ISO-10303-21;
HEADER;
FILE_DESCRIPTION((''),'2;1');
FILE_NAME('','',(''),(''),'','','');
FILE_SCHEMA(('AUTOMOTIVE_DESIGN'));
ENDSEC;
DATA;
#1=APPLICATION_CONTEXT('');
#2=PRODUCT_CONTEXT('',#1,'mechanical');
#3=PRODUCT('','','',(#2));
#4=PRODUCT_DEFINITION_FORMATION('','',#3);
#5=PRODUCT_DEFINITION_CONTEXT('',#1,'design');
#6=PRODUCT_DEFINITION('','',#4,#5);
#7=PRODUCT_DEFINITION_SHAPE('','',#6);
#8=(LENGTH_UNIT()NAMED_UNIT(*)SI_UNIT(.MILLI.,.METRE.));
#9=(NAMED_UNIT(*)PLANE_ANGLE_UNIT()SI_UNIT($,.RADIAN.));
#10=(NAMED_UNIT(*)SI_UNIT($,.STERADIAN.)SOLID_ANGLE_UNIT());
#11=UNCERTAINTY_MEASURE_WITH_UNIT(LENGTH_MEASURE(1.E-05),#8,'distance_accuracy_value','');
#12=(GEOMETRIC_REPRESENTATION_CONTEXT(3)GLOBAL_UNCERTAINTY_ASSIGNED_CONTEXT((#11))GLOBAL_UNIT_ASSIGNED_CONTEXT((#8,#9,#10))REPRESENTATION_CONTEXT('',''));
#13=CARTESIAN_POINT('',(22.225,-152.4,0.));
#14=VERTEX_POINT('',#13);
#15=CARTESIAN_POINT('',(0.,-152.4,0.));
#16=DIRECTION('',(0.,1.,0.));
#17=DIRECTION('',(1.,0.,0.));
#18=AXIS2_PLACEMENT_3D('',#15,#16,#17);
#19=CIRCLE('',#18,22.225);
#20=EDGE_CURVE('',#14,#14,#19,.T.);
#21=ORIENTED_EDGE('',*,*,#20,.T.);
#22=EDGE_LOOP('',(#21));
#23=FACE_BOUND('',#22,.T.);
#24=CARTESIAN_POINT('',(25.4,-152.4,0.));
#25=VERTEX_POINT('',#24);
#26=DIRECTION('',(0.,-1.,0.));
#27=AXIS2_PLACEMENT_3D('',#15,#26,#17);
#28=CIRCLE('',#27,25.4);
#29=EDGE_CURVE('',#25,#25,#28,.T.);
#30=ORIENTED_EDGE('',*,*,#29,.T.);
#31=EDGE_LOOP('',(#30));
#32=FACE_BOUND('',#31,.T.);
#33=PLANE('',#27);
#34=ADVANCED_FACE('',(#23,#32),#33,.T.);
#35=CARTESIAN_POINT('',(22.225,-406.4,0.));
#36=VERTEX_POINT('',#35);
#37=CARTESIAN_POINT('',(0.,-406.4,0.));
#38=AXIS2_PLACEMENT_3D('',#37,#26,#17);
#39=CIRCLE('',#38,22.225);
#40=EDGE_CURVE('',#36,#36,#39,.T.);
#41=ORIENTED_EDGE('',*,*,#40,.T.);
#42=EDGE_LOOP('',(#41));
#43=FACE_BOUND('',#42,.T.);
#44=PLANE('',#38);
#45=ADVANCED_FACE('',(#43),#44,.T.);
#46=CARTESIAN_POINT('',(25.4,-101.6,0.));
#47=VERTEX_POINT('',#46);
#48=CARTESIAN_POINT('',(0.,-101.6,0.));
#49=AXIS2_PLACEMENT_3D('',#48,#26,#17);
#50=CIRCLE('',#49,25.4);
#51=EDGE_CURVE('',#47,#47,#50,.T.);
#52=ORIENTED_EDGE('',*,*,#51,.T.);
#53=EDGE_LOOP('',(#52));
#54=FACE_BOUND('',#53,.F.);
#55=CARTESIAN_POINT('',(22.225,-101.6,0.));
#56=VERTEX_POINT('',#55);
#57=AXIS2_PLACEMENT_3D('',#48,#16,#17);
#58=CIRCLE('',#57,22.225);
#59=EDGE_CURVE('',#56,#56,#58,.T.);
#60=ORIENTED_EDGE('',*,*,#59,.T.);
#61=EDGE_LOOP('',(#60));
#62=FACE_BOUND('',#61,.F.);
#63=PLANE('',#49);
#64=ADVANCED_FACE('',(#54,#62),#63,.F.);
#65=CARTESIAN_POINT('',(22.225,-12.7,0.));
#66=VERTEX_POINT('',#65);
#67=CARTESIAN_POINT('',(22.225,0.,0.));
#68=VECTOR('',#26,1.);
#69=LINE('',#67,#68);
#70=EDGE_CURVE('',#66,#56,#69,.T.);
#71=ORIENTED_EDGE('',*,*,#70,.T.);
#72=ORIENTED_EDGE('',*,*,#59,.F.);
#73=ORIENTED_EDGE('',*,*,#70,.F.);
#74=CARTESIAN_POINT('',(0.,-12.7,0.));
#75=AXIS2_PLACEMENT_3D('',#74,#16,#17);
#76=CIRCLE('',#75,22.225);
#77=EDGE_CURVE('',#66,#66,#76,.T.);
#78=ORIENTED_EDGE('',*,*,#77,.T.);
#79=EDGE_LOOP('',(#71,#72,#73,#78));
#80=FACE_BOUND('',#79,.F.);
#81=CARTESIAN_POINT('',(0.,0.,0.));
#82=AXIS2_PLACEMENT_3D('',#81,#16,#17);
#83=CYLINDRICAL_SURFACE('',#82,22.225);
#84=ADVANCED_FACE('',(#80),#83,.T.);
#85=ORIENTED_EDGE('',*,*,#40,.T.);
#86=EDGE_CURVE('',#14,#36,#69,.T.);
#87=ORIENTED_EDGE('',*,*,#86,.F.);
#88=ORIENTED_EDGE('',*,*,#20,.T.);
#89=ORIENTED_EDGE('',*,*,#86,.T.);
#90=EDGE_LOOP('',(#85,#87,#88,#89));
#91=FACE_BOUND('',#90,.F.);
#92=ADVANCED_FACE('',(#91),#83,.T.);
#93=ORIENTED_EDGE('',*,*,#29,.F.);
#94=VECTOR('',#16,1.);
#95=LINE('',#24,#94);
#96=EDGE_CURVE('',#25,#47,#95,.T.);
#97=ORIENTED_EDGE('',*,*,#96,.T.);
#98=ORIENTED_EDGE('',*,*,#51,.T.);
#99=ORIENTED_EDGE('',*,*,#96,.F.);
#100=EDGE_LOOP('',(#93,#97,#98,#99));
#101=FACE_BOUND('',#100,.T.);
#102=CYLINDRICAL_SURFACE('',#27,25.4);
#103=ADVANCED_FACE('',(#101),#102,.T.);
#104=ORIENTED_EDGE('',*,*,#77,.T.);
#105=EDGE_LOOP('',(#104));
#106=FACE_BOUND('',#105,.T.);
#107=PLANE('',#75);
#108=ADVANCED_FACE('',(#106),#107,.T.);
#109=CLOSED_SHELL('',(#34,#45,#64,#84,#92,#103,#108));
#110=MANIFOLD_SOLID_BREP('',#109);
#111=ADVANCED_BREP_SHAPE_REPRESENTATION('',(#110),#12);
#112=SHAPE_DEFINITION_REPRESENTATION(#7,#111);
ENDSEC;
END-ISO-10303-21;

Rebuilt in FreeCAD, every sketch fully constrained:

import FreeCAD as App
import Part
import Sketcher
Q = App.Units.Quantity

doc = App.newDocument("Part")
body = doc.addObject("PartDesign::Body", "Body")

# Sketch on XZ plane
sketch1 = body.newObject("Sketcher::SketchObject", "Sketch")
sketch1.AttachmentSupport = (doc.getObject("XZ_Plane"), [""])
sketch1.MapMode = "FlatFace"
sketch1.addGeometry(Part.Circle(App.Vector(0, 0, 0), App.Vector(0, 0, 1), 22), False)
sketch1.addConstraint([
    Sketcher.Constraint("Coincident", 0, 3, -1, 1),
    Sketcher.Constraint("Diameter", 0, Q("1.75 in")),
])
pad1 = body.newObject("PartDesign::Pad", "Pad")
pad1.Profile = sketch1
pad1.Length = Q("16 in")

# Sketch on XZ plane
sketch2 = body.newObject("Sketcher::SketchObject", "Sketch001")
sketch2.AttachmentSupport = (doc.getObject("XZ_Plane"), [""])
sketch2.MapMode = "FlatFace"
sketch2.AttachmentOffset = App.Placement(App.Vector(0, 0, 6 * 25.4), App.Rotation())
sketch2.addGeometry(Part.Circle(App.Vector(0, 0, 0), App.Vector(0, 0, 1), 25), False)
sketch2.addConstraint([
    Sketcher.Constraint("Coincident", 0, 3, -1, 1),
    Sketcher.Constraint("Diameter", 0, Q("2 in")),
])
pad2 = body.newObject("PartDesign::Pad", "Pad001")
pad2.Profile = sketch2
pad2.Length = Q("2 in")
pad2.Reversed = True

# Sketch on XZ plane
sketch3 = body.newObject("Sketcher::SketchObject", "Sketch002")
sketch3.AttachmentSupport = (doc.getObject("XZ_Plane"), [""])
sketch3.MapMode = "FlatFace"
sketch3.addGeometry(Part.Circle(App.Vector(0, 0, 0), App.Vector(0, 0, 1), 22), False)
sketch3.addConstraint([
    Sketcher.Constraint("Coincident", 0, 3, -1, 1),
    Sketcher.Constraint("Diameter", 0, Q("1.75 in")),
])
pocket1 = body.newObject("PartDesign::Pocket", "Pocket")
pocket1.Profile = sketch3
pocket1.Length = Q("0.5 in")
pocket1.Reversed = True

doc.recompute()
